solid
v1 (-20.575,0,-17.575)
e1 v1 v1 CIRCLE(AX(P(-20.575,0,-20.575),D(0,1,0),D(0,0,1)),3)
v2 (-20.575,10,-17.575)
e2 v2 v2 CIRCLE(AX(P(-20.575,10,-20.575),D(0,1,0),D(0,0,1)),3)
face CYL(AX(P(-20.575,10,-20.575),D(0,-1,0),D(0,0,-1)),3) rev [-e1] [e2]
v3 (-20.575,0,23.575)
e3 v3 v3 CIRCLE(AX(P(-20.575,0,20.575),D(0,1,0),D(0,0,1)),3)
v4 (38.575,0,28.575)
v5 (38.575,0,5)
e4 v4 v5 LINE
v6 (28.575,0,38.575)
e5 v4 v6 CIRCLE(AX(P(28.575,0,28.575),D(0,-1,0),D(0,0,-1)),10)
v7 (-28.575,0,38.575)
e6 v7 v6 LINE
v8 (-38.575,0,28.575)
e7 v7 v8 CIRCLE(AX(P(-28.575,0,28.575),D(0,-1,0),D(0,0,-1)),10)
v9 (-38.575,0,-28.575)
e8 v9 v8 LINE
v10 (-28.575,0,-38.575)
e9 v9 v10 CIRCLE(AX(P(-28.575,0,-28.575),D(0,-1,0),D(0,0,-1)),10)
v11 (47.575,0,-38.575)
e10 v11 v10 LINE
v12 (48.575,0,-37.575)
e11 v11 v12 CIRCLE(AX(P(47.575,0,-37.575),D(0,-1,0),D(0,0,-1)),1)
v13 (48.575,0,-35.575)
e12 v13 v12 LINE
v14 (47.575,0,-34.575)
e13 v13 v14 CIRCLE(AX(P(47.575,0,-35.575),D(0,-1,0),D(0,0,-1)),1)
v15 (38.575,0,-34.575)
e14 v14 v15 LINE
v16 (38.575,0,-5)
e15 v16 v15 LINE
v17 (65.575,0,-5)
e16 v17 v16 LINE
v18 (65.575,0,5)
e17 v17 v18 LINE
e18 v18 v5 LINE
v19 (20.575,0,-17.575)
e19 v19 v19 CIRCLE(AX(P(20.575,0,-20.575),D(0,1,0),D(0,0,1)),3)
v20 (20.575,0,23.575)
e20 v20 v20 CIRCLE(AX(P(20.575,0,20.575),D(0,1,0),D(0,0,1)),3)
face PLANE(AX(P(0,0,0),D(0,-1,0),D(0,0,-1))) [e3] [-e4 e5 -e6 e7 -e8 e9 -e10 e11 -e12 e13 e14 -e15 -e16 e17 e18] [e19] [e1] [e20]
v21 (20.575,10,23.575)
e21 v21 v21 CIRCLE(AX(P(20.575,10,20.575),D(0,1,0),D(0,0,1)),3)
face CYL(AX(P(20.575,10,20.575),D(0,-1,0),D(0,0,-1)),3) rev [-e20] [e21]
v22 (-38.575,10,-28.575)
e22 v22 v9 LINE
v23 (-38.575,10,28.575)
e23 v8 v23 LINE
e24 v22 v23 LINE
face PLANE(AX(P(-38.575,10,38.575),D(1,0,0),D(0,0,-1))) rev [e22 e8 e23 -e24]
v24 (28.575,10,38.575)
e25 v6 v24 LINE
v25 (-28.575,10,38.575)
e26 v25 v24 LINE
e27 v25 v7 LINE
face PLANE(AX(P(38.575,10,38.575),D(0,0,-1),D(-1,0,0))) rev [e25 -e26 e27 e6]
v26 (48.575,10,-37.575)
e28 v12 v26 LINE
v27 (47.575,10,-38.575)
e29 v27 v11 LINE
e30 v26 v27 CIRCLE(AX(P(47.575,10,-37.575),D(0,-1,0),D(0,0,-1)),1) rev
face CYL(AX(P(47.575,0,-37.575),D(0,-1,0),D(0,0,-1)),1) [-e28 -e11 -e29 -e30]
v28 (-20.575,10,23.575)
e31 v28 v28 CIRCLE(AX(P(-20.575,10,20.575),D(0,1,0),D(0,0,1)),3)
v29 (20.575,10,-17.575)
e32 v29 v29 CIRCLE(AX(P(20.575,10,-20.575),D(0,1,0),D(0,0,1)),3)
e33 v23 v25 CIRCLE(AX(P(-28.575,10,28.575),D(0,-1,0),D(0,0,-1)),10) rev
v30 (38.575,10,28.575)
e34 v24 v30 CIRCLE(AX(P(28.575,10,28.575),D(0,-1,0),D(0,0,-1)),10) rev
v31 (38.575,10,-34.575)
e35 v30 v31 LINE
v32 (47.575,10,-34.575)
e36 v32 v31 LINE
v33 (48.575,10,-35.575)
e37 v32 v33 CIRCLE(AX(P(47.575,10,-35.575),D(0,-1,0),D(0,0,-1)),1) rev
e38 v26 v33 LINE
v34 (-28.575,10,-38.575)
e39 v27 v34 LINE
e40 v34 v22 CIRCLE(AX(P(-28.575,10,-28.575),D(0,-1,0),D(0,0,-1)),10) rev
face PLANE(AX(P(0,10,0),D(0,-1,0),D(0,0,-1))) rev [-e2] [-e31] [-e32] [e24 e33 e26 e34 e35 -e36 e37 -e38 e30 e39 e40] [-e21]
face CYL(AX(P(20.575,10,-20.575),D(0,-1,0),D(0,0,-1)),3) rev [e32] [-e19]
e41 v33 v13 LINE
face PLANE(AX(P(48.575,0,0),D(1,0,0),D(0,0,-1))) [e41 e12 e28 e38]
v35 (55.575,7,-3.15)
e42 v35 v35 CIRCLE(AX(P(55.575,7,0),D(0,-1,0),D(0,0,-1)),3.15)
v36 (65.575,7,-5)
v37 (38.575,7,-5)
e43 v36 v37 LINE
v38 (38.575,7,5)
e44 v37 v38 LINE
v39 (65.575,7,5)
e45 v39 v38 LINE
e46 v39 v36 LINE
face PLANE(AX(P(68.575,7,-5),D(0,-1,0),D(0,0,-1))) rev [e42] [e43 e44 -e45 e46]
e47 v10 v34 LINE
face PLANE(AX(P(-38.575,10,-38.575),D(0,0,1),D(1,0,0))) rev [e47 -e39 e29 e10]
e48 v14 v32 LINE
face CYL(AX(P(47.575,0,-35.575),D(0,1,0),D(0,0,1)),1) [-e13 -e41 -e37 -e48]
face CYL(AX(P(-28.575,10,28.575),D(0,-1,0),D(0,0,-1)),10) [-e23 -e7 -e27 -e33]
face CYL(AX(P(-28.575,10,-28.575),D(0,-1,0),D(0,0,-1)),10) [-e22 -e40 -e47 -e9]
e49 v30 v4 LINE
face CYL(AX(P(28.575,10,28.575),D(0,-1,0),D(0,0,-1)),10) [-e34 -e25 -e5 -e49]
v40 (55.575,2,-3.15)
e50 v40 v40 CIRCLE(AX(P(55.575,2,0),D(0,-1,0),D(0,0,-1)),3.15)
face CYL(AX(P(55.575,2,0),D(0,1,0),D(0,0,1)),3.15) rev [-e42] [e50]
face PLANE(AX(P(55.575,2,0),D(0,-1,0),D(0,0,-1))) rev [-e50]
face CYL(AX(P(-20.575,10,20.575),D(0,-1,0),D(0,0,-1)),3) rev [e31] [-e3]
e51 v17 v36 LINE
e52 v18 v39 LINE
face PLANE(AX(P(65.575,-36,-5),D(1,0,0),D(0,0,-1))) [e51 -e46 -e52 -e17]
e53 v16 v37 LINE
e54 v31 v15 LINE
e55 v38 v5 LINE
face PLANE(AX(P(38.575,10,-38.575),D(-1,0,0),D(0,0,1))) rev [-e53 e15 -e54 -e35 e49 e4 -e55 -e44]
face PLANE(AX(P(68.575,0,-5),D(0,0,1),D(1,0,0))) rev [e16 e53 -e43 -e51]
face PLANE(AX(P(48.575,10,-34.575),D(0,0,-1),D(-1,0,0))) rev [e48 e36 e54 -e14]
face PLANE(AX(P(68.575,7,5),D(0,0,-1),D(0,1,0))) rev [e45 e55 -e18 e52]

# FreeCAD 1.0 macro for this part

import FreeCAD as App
import Part
import Sketcher
from FreeCAD import Vector
Q = App.Units.Quantity


def edges_at(feature, points):
    """Names of the edges that pass closest to the given points."""
    edges = feature.Shape.Edges
    near = lambda p: min(range(len(edges)), key=lambda i: edges[i].distToShape(Part.Vertex(*p))[0])
    return sorted({f"Edge{near(p) + 1}" for p in points})

doc = App.newDocument("Part")
body = doc.addObject("PartDesign::Body", "Body")

# Sketch on XZ plane
sketch1 = doc.addObject("Sketcher::SketchObject", "Sketch")
body.addObject(sketch1)
sketch1.AttachmentSupport = (doc.XZ_Plane, [""])
sketch1.MapMode = "FlatFace"
sketch1.addGeometry([
    Part.LineSegment(Vector(-38.6, -38.6, 0), Vector(-38.6, 38.6, 0)),  # 0
    Part.LineSegment(Vector(-38.6, 38.6, 0), Vector(38.6, 38.6, 0)),  # 1
    Part.LineSegment(Vector(38.6, 38.6, 0), Vector(38.6, -38.6, 0)),  # 2
    Part.LineSegment(Vector(38.6, -38.6, 0), Vector(-38.6, -38.6, 0)),  # 3
    Part.Circle(Vector(-20.6, 20.6, 0), Vector(0, 0, 1), 3),  # 4
    Part.Circle(Vector(20.6, 20.6, 0), Vector(0, 0, 1), 3),  # 5
    Part.Circle(Vector(-20.6, -20.6, 0), Vector(0, 0, 1), 3),  # 6
    Part.Circle(Vector(20.6, -20.6, 0), Vector(0, 0, 1), 3),  # 7
], False)
sketch1.addConstraint([
    Sketcher.Constraint("Coincident", 0, 2, 1, 1),
    Sketcher.Constraint("Coincident", 1, 2, 2, 1),
    Sketcher.Constraint("Coincident", 2, 2, 3, 1),
    Sketcher.Constraint("Coincident", 3, 2, 0, 1),
    Sketcher.Constraint("Vertical", 0),
    Sketcher.Constraint("Horizontal", 1),
    Sketcher.Constraint("Vertical", 2),
    Sketcher.Constraint("Horizontal", 3),
    Sketcher.Constraint("Equal", 4, 5),
    Sketcher.Constraint("Equal", 5, 6),
    Sketcher.Constraint("Equal", 6, 7),
    Sketcher.Constraint("Symmetric", 5, 3, 6, 3, -1, 1),
    Sketcher.Constraint("Symmetric", 4, 3, 7, 3, -1, 1),
    Sketcher.Constraint("Symmetric", 0, 2, 2, 2, -1, 1),
    Sketcher.Constraint("Symmetric", 4, 3, 5, 3, -2),
    Sketcher.Constraint("Equal", 3, 0),
    Sketcher.Constraint("Diameter", 4, Q("6 mm")),
    Sketcher.Constraint("DistanceX", 0, 2, 4, 3, Q("18 mm")),
    Sketcher.Constraint("DistanceY", 4, 3, 0, 2, Q("18 mm")),
    Sketcher.Constraint("DistanceX", 1, 1, 1, 2, Q("77.15 mm")),
])
pad1 = doc.addObject("PartDesign::Pad", "Pad")
body.addObject(pad1)
pad1.Profile = sketch1
pad1.Length = 10
pad1.Reversed = True
doc.recompute()

fillet = doc.addObject("PartDesign::Fillet", "Fillet")
body.addObject(fillet)
fillet.Base = (pad1, edges_at(pad1, [(-38.575, 5, 38.575), (-38.575, 5, -38.575), (38.575, 5, 38.575)]))
fillet.Radius = 10

# Sketch on YZ plane
sketch2 = doc.addObject("Sketcher::SketchObject", "Sketch001")
body.addObject(sketch2)
sketch2.AttachmentSupport = (doc.YZ_Plane, [""])
sketch2.MapMode = "FlatFace"
sketch2.AttachmentOffset = App.Placement(Vector(0, 0, 38.575), App.Rotation())
sketch2.addGeometry([
    Part.LineSegment(Vector(0, 5, 0), Vector(0, -5, 0)),
    Part.LineSegment(Vector(0, -5, 0), Vector(7, -5, 0)),
    Part.LineSegment(Vector(7, -5, 0), Vector(7, 5, 0)),
    Part.LineSegment(Vector(7, 5, 0), Vector(0, 5, 0)),
], False)
sketch2.addConstraint([
    Sketcher.Constraint("Coincident", 0, 2, 1, 1),
    Sketcher.Constraint("Coincident", 1, 2, 2, 1),
    Sketcher.Constraint("Coincident", 2, 2, 3, 1),
    Sketcher.Constraint("Coincident", 3, 2, 0, 1),
    Sketcher.Constraint("Vertical", 0),
    Sketcher.Constraint("Horizontal", 1),
    Sketcher.Constraint("Vertical", 2),
    Sketcher.Constraint("Horizontal", 3),
    Sketcher.Constraint("Symmetric", 0, 2, 3, 2, -1, 1),
    Sketcher.Constraint("DistanceX", 1, 1, 1, 2, Q("7 mm")),
    Sketcher.Constraint("DistanceY", 0, 2, 0, 1, Q("10 mm")),
])
pad2 = doc.addObject("PartDesign::Pad", "Pad001")
body.addObject(pad2)
pad2.Profile = sketch2
pad2.Length = 30

# Sketch on XZ plane
sketch3 = doc.addObject("Sketcher::SketchObject", "Sketch002")
body.addObject(sketch3)
sketch3.AttachmentSupport = (doc.XZ_Plane, [""])
sketch3.MapMode = "FlatFace"
sketch3.AttachmentOffset = App.Placement(Vector(0, 0, -7), App.Rotation())
sketch3.addGeometry(Part.Circle(Vector(55.6, 0, 0), Vector(0, 0, 1), 3.1), False)
sketch3.addConstraint([
    Sketcher.Constraint("PointOnObject", 0, 3, -1),
    Sketcher.Constraint("Diameter", 0, Q("6.3 mm")),
    Sketcher.Constraint("DistanceX", -1, 1, 0, 3, Q("55.575 mm")),
])
pocket1 = doc.addObject("PartDesign::Pocket", "Pocket")
body.addObject(pocket1)
pocket1.Profile = sketch3
pocket1.Length = 5
pocket1.Reversed = True

# Sketch on XZ plane
sketch4 = doc.addObject("Sketcher::SketchObject", "Sketch003")
body.addObject(sketch4)
sketch4.AttachmentSupport = (doc.XZ_Plane, [""])
sketch4.MapMode = "FlatFace"
sketch4.AttachmentOffset = App.Placement(Vector(0, 0, -7), App.Rotation())
sketch4.addGeometry([
    Part.LineSegment(Vector(65.6, -5, 0), Vector(65.6, 5, 0)),
    Part.LineSegment(Vector(65.6, 5, 0), Vector(68.6, 5, 0)),
    Part.LineSegment(Vector(68.6, 5, 0), Vector(68.6, -5, 0)),
    Part.LineSegment(Vector(68.6, -5, 0), Vector(65.6, -5, 0)),
], False)
sketch4.addConstraint([
    Sketcher.Constraint("Coincident", 0, 2, 1, 1),
    Sketcher.Constraint("Coincident", 1, 2, 2, 1),
    Sketcher.Constraint("Coincident", 2, 2, 3, 1),
    Sketcher.Constraint("Coincident", 3, 2, 0, 1),
    Sketcher.Constraint("Vertical", 0),
    Sketcher.Constraint("Horizontal", 1),
    Sketcher.Constraint("Vertical", 2),
    Sketcher.Constraint("Horizontal", 3),
    Sketcher.Constraint("DistanceX", 1, 1, 1, 2, Q("3 mm")),
    Sketcher.Constraint("DistanceY", 0, 1, 0, 2, Q("10 mm")),
    Sketcher.Constraint("DistanceY", -1, 1, 0, 2, Q("5 mm")),
    Sketcher.Constraint("DistanceX", -1, 1, 0, 2, Q("65.575 mm")),
])
pocket2 = doc.addObject("PartDesign::Pocket", "Pocket001")
body.addObject(pocket2)
pocket2.Profile = sketch4
pocket2.Length = 43
pocket2.Reversed = True

# Sketch on YZ plane
sketch5 = doc.addObject("Sketcher::SketchObject", "Sketch004")
body.addObject(sketch5)
sketch5.AttachmentSupport = (doc.YZ_Plane, [""])
sketch5.MapMode = "FlatFace"
sketch5.AttachmentOffset = App.Placement(Vector(0, 0, 38.575), App.Rotation())
sketch5.addGeometry([
    Part.LineSegment(Vector(10, -34.6, 0), Vector(0, -34.6, 0)),
    Part.LineSegment(Vector(0, -34.6, 0), Vector(0, -38.6, 0)),
    Part.LineSegment(Vector(0, -38.6, 0), Vector(10, -38.6, 0)),
    Part.LineSegment(Vector(10, -38.6, 0), Vector(10, -34.6, 0)),
], False)
sketch5.addConstraint([
    Sketcher.Constraint("Coincident", 0, 2, 1, 1),
    Sketcher.Constraint("Coincident", 1, 2, 2, 1),
    Sketcher.Constraint("Coincident", 2, 2, 3, 1),
    Sketcher.Constraint("Coincident", 3, 2, 0, 1),
    Sketcher.Constraint("Horizontal", 0),
    Sketcher.Constraint("Vertical", 1),
    Sketcher.Constraint("Horizontal", 2),
    Sketcher.Constraint("Vertical", 3),
    Sketcher.Constraint("PointOnObject", 0, 2, -2),
    Sketcher.Constraint("DistanceX", 0, 2, 0, 1, Q("10 mm")),
    Sketcher.Constraint("DistanceY", 1, 2, 1, 1, Q("4 mm")),
    Sketcher.Constraint("DistanceY", 0, 2, -1, 1, Q("34.575 mm")),
])
pad3 = doc.addObject("PartDesign::Pad", "Pad002")
body.addObject(pad3)
pad3.Profile = sketch5
pad3.Length = 10
doc.recompute()

fillet2 = doc.addObject("PartDesign::Fillet", "Fillet001")
body.addObject(fillet2)
fillet2.Base = (pad3, edges_at(pad3, [(48.575, 5, -38.575), (48.575, 5, -34.575)]))
fillet2.Radius = 1

doc.recompute()
